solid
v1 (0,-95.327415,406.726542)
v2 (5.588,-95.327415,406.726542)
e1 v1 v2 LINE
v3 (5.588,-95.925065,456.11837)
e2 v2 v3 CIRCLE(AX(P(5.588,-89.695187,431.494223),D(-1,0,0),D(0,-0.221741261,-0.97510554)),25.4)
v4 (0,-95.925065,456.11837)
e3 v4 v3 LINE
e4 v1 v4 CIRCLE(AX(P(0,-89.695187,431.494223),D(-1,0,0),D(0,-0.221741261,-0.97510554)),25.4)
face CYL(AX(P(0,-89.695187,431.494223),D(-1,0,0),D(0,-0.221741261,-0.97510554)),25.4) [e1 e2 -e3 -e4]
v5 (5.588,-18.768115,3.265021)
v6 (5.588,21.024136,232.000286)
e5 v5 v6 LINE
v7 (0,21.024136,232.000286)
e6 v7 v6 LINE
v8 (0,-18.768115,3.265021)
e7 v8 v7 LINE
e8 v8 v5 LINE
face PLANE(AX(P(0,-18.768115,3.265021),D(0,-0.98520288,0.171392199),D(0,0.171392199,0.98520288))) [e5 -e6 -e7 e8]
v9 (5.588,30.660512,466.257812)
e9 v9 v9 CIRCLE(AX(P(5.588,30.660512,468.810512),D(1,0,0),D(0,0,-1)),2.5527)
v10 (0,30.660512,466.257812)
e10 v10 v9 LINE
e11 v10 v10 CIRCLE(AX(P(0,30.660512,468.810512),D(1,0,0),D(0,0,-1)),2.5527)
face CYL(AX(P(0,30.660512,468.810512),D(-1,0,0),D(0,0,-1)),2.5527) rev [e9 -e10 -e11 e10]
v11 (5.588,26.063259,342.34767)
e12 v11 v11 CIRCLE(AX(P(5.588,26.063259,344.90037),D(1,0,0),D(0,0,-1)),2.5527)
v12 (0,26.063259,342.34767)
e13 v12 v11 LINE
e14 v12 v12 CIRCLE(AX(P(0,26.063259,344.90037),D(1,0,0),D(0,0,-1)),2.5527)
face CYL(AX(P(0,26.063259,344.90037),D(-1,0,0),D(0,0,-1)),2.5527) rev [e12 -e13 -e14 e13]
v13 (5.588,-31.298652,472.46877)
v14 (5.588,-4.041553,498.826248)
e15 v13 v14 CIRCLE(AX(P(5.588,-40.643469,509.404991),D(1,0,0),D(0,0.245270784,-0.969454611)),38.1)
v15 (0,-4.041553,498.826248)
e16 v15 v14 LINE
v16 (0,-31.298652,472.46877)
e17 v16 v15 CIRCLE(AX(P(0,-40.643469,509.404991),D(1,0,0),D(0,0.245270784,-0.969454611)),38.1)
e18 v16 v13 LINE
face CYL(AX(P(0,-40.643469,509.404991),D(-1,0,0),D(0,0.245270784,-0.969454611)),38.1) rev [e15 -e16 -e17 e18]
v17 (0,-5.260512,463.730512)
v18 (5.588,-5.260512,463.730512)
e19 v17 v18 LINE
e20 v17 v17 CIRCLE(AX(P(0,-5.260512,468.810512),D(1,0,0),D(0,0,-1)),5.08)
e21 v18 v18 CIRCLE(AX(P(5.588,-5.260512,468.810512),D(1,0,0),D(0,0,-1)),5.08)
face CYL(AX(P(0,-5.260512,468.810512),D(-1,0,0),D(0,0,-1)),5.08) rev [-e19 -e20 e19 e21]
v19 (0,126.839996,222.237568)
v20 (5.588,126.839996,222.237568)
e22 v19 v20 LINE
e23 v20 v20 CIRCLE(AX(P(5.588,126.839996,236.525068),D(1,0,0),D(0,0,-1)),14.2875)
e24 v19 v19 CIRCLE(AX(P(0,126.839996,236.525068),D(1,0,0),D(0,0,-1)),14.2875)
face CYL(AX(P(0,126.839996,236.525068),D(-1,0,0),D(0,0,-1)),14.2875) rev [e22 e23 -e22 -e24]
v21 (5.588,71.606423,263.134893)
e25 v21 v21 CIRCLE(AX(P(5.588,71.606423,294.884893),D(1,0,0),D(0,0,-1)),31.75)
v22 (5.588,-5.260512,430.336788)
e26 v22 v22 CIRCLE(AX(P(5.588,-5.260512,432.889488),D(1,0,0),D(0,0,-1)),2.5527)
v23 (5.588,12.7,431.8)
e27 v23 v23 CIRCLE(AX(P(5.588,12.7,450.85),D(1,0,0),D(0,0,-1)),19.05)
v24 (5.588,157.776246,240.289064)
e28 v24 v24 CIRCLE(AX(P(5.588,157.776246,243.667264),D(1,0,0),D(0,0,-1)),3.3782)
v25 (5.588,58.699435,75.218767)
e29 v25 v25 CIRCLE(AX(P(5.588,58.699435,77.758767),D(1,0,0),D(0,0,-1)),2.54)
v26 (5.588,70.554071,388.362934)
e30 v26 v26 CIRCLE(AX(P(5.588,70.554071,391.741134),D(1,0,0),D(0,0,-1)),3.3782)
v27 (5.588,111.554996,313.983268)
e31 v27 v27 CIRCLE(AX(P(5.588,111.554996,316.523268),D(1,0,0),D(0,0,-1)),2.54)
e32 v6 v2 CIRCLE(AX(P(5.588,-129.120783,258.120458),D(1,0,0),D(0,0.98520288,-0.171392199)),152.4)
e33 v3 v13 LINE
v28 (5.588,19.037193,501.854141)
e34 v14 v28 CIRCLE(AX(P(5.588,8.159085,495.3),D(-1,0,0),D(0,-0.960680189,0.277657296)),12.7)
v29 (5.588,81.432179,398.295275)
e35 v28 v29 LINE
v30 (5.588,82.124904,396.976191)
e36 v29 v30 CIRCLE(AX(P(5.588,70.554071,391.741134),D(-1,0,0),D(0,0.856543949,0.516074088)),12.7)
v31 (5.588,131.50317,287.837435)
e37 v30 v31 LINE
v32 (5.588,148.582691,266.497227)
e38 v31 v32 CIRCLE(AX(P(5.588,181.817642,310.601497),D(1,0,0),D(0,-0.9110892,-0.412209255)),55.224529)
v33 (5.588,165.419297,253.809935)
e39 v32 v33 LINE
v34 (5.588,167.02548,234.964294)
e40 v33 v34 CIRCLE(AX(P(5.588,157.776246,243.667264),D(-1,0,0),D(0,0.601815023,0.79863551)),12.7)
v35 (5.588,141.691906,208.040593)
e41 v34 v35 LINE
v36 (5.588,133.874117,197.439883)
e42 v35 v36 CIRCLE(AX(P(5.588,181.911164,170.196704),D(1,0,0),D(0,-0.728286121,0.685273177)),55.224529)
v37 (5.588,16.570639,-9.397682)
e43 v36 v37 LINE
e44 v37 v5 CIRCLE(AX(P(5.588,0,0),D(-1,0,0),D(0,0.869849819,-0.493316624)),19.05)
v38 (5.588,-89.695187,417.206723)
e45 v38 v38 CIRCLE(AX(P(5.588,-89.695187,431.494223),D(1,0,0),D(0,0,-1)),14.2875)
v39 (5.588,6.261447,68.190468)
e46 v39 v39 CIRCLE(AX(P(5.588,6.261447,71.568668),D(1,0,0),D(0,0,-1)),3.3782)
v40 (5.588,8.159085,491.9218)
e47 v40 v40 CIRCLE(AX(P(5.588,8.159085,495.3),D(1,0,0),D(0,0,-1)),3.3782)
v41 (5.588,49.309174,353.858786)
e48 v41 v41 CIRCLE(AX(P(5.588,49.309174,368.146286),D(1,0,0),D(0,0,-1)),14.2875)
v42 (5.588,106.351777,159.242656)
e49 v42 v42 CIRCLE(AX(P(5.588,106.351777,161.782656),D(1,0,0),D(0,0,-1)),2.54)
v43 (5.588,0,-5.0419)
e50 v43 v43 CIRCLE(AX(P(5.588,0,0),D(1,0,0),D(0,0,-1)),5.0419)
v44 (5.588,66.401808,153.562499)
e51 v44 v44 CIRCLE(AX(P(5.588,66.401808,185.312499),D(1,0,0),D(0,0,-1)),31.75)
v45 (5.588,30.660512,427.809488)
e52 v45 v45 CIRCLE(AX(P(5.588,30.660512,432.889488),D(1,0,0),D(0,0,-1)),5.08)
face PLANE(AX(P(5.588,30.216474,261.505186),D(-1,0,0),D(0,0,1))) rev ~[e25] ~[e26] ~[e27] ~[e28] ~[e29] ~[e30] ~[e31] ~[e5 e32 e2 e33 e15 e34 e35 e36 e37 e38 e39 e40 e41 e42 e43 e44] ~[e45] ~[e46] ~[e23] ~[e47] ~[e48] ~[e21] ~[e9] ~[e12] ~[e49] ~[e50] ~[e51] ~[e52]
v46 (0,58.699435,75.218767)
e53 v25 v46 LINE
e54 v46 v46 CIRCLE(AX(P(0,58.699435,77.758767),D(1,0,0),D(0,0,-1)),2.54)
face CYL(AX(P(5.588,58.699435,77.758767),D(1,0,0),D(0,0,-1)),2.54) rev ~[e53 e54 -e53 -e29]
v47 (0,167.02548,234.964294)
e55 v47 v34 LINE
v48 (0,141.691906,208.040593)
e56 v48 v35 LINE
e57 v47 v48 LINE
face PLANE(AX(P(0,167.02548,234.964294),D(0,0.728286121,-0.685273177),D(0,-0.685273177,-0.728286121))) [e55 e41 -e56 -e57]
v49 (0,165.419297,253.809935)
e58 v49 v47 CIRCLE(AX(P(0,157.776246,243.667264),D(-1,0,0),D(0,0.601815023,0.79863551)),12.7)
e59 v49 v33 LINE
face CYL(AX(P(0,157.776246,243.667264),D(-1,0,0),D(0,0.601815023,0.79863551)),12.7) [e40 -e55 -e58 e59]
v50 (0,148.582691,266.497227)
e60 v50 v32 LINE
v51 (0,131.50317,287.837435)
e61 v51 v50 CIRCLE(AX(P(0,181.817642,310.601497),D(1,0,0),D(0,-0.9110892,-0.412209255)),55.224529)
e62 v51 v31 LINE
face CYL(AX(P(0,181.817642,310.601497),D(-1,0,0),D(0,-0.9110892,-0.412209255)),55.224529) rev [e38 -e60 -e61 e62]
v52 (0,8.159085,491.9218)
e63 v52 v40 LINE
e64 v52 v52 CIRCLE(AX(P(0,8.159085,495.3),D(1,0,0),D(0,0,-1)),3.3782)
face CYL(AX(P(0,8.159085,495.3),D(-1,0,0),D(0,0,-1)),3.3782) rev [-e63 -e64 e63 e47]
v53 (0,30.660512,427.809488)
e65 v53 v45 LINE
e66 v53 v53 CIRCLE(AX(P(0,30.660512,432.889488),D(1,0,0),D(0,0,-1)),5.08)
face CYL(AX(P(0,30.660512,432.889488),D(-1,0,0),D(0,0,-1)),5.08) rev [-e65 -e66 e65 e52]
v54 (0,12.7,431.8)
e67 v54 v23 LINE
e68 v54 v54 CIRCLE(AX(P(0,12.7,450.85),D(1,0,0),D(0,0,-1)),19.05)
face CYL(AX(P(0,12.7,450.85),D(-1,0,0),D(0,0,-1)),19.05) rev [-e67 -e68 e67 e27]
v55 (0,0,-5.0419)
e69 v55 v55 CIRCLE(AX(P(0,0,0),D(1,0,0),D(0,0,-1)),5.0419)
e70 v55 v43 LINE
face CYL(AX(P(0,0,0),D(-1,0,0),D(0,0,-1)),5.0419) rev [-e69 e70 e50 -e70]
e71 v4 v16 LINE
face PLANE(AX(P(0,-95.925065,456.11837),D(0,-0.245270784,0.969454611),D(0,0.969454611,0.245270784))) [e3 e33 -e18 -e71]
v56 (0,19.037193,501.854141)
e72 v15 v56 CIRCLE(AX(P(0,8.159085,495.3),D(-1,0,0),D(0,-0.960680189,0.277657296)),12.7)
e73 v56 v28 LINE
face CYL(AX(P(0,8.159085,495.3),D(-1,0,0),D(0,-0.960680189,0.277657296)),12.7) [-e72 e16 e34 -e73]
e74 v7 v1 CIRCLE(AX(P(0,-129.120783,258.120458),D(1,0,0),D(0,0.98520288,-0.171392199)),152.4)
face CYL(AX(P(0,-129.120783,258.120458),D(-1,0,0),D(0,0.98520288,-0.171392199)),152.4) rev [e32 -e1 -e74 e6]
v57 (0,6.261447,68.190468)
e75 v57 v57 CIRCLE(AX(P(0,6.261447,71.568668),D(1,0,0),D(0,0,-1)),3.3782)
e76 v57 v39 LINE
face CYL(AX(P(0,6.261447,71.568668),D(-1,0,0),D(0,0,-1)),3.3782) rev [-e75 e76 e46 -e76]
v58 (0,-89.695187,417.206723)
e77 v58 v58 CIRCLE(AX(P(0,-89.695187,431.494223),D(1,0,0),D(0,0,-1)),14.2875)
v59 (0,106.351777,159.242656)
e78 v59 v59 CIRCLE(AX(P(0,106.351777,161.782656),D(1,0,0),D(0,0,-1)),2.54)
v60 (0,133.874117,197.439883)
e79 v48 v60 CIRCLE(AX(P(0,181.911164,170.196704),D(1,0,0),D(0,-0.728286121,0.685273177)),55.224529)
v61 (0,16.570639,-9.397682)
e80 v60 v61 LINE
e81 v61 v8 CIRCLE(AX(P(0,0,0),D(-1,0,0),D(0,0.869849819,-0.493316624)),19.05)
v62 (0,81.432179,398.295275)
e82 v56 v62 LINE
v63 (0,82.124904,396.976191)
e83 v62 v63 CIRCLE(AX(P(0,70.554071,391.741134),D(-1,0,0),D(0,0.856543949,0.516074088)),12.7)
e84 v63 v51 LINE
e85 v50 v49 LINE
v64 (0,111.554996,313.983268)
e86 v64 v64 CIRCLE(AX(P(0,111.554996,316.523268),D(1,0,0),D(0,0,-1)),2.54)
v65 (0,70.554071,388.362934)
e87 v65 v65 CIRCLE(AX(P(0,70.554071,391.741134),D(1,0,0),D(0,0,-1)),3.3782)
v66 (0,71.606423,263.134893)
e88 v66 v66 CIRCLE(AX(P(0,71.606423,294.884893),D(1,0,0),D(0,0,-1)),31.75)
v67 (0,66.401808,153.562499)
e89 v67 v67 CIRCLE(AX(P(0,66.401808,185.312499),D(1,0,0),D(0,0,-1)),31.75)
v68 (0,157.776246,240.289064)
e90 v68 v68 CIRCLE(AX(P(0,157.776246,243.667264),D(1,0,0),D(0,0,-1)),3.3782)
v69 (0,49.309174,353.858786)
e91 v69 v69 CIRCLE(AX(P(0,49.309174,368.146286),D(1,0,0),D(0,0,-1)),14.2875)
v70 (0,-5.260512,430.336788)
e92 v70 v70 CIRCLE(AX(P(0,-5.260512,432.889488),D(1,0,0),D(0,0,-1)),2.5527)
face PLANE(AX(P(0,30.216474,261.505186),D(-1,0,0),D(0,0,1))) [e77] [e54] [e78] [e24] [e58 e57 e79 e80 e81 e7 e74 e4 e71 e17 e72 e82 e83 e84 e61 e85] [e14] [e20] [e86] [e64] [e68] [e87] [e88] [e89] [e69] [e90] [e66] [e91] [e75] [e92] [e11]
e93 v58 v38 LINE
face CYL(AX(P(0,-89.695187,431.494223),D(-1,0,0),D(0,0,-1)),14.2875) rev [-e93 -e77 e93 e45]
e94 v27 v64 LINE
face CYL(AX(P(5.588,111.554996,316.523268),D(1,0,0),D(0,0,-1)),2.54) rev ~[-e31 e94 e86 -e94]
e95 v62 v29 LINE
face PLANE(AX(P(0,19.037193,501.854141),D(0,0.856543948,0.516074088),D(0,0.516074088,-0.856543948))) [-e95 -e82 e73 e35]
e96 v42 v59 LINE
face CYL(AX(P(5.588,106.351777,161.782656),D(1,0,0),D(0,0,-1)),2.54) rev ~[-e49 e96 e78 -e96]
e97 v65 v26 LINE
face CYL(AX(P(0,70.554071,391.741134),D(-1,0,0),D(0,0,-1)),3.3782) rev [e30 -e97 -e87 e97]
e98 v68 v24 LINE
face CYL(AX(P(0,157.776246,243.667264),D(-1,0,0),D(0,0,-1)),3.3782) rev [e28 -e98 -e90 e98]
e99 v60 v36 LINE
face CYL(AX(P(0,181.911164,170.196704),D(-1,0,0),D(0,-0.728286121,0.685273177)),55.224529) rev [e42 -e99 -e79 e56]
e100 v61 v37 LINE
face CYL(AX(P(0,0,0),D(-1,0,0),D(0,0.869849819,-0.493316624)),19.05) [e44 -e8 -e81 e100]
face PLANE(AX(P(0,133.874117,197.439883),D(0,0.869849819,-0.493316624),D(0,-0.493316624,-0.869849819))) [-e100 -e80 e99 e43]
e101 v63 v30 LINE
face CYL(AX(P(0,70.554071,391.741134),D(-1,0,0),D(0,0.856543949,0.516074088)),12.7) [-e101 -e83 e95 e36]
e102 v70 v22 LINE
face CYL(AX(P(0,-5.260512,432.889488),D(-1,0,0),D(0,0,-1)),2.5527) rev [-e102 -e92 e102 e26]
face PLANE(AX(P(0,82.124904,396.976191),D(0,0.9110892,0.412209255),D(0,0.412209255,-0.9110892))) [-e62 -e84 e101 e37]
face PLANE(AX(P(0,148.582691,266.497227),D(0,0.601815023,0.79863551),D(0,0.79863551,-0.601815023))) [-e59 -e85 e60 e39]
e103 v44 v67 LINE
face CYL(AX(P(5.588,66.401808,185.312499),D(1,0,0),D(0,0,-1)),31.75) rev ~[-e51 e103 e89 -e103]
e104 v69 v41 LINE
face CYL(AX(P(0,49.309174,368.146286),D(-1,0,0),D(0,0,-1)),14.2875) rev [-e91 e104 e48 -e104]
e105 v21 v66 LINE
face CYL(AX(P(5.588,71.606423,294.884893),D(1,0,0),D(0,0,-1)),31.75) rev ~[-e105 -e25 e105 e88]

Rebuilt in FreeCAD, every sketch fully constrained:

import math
import FreeCAD as App
import Part
import Sketcher

V = App.Vector
Q = App.Units.Quantity

doc = App.newDocument("Part")
body = doc.addObject("PartDesign::Body", "Body")

sketch1 = body.newObject("Sketcher::SketchObject", "Sketch")
sketch1.AttachmentSupport = (doc.getObject("YZ_Plane"), [""])
sketch1.MapMode = "FlatFace"
sketch1.addGeometry(Part.LineSegment(V(-31.3, 472.5, 0), V(-95.9, 456.1, 0)), False)
sketch1.addGeometry(Part.ArcOfCircle(Part.Circle(V(-89.7, 431.5, 0), V(0, 0, 1), 25.4), math.radians(104), math.radians(257)), False)
sketch1.addGeometry(Part.ArcOfCircle(Part.Circle(V(-129.1, 258.1, 0), V(0, 0, 1), 152.4), math.radians(-10), math.radians(77)), False)
sketch1.addGeometry(Part.LineSegment(V(21, 232, 0), V(-18.8, 3.3, 0)), False)
sketch1.addGeometry(Part.ArcOfCircle(Part.Circle(V(0, 0, 0), V(0, 0, 1), 19.1), math.radians(170), math.radians(330)), False)
sketch1.addGeometry(Part.LineSegment(V(16.6, -9.4, 0), V(133.9, 197.4, 0)), False)
sketch1.addGeometry(Part.ArcOfCircle(Part.Circle(V(181.9, 170.2, 0), V(0, 0, 1), 55.2), math.radians(136.74), math.radians(150.44)), False)
sketch1.addGeometry(Part.LineSegment(V(141.7, 208, 0), V(167, 235, 0)), False)
sketch1.addGeometry(Part.ArcOfCircle(Part.Circle(V(157.8, 243.7, 0), V(0, 0, 1), 12.7), math.radians(-43), math.radians(53)), False)
sketch1.addGeometry(Part.LineSegment(V(165.4, 253.8, 0), V(148.6, 266.5, 0)), False)
sketch1.addGeometry(Part.ArcOfCircle(Part.Circle(V(181.8, 310.6, 0), V(0, 0, 1), 55.2), math.radians(-156), math.radians(-127)), False)
sketch1.addGeometry(Part.LineSegment(V(131.5, 287.8, 0), V(82.1, 397, 0)), False)
sketch1.addGeometry(Part.ArcOfCircle(Part.Circle(V(70.6, 391.7, 0), V(0, 0, 1), 12.7), math.radians(24.34), math.radians(31.07)), False)
sketch1.addGeometry(Part.LineSegment(V(81.4, 398.3, 0), V(19, 501.9, 0)), False)
sketch1.addGeometry(Part.ArcOfCircle(Part.Circle(V(8.2, 495.3, 0), V(0, 0, 1), 12.7), math.radians(31), math.radians(164)), False)
sketch1.addGeometry(Part.ArcOfCircle(Part.Circle(V(-40.6, 509.4, 0), V(0, 0, 1), 38.1), math.radians(-76), math.radians(-16)), False)
sketch1.addGeometry(Part.Circle(V(0, 0, 0), V(0, 0, 1), 5), False)
sketch1.addGeometry(Part.Circle(V(6.3, 71.6, 0), V(0, 0, 1), 3.4), False)
sketch1.addGeometry(Part.Circle(V(-89.7, 431.5, 0), V(0, 0, 1), 14.3), False)
sketch1.addGeometry(Part.Circle(V(26.1, 344.9, 0), V(0, 0, 1), 2.6), False)
sketch1.addGeometry(Part.Circle(V(-5.3, 432.9, 0), V(0, 0, 1), 2.6), False)
sketch1.addGeometry(Part.Circle(V(-5.3, 468.8, 0), V(0, 0, 1), 5.1), False)
sketch1.addGeometry(Part.Circle(V(8.2, 495.3, 0), V(0, 0, 1), 3.4), False)
sketch1.addGeometry(Part.Circle(V(12.7, 450.9, 0), V(0, 0, 1), 19.1), False)
sketch1.addGeometry(Part.Circle(V(126.8, 236.5, 0), V(0, 0, 1), 14.3), False)
sketch1.addGeometry(Part.Circle(V(157.8, 243.7, 0), V(0, 0, 1), 3.4), False)
sketch1.addGeometry(Part.Circle(V(49.3, 368.1, 0), V(0, 0, 1), 14.3), False)
sketch1.addGeometry(Part.Circle(V(30.7, 432.9, 0), V(0, 0, 1), 5.1), False)
sketch1.addGeometry(Part.Circle(V(30.7, 468.8, 0), V(0, 0, 1), 2.6), False)
sketch1.addGeometry(Part.Circle(V(70.6, 391.7, 0), V(0, 0, 1), 3.4), False)
sketch1.addConstraint(Sketcher.Constraint("Tangent", 0, 2, 1, 1))
sketch1.addConstraint(Sketcher.Constraint("Tangent", 1, 2, 2, 2))
sketch1.addConstraint(Sketcher.Constraint("Tangent", 2, 1, 3, 1))
sketch1.addConstraint(Sketcher.Constraint("Tangent", 3, 2, 4, 1))
sketch1.addConstraint(Sketcher.Constraint("Tangent", 4, 2, 5, 1))
sketch1.addConstraint(Sketcher.Constraint("Tangent", 5, 2, 6, 2))
sketch1.addConstraint(Sketcher.Constraint("Tangent", 6, 1, 7, 1))
sketch1.addConstraint(Sketcher.Constraint("Tangent", 7, 2, 8, 1))
sketch1.addConstraint(Sketcher.Constraint("Tangent", 8, 2, 9, 1))
sketch1.addConstraint(Sketcher.Constraint("Tangent", 9, 2, 10, 2))
sketch1.addConstraint(Sketcher.Constraint("Tangent", 10, 1, 11, 1))
sketch1.addConstraint(Sketcher.Constraint("Tangent", 11, 2, 12, 1))
sketch1.addConstraint(Sketcher.Constraint("Tangent", 12, 2, 13, 1))
sketch1.addConstraint(Sketcher.Constraint("Tangent", 13, 2, 14, 1))
sketch1.addConstraint(Sketcher.Constraint("Tangent", 14, 2, 15, 2))
sketch1.addConstraint(Sketcher.Constraint("Tangent", 15, 1, 0, 1))
sketch1.addConstraint(Sketcher.Constraint("Coincident", 4, 3, -1, 1))
sketch1.addConstraint(Sketcher.Constraint("Coincident", 16, 3, -1, 1))
sketch1.addConstraint(Sketcher.Constraint("Coincident", 18, 3, 1, 3))
sketch1.addConstraint(Sketcher.Constraint("Coincident", 22, 3, 14, 3))
sketch1.addConstraint(Sketcher.Constraint("Coincident", 25, 3, 8, 3))
sketch1.addConstraint(Sketcher.Constraint("Coincident", 29, 3, 12, 3))
sketch1.addConstraint(Sketcher.Constraint("Equal", 6, 10))
sketch1.addConstraint(Sketcher.Constraint("Equal", 8, 12))
sketch1.addConstraint(Sketcher.Constraint("Equal", 12, 14))
sketch1.addConstraint(Sketcher.Constraint("Equal", 19, 20))
sketch1.addConstraint(Sketcher.Constraint("Equal", 17, 22))
sketch1.addConstraint(Sketcher.Constraint("Equal", 4, 23))
sketch1.addConstraint(Sketcher.Constraint("Equal", 18, 24))
sketch1.addConstraint(Sketcher.Constraint("Equal", 22, 25))
sketch1.addConstraint(Sketcher.Constraint("Equal", 24, 26))
sketch1.addConstraint(Sketcher.Constraint("Equal", 21, 27))
sketch1.addConstraint(Sketcher.Constraint("Equal", 20, 28))
sketch1.addConstraint(Sketcher.Constraint("Equal", 25, 29))
sketch1.addConstraint(Sketcher.Constraint("Horizontal", 20, 3, 27, 3))
sketch1.addConstraint(Sketcher.Constraint("Horizontal", 21, 3, 28, 3))
sketch1.addConstraint(Sketcher.Constraint("Vertical", 20, 3, 21, 3))
sketch1.addConstraint(Sketcher.Constraint("Vertical", 27, 3, 28, 3))
sketch1.addConstraint(Sketcher.Constraint("Radius", 1, Q("1 in")))
sketch1.addConstraint(Sketcher.Constraint("Radius", 2, Q("6 in")))
sketch1.addConstraint(Sketcher.Constraint("Diameter", 21, Q("0.4 in")))
sketch1.addConstraint(Sketcher.Constraint("Diameter", 23, Q("1.5 in")))
sketch1.addConstraint(Sketcher.Constraint("Radius", 8, Q("0.5 in")))
sketch1.addConstraint(Sketcher.Constraint("Radius", 15, Q("1.5 in")))
sketch1.addConstraint(Sketcher.Constraint("Diameter", 16, Q("0.397 in")))
sketch1.addConstraint(Sketcher.Constraint("Diameter", 17, Q("0.266 in")))
sketch1.addConstraint(Sketcher.Constraint("Diameter", 18, Q("1.125 in")))
sketch1.addConstraint(Sketcher.Constraint("Diameter", 19, Q("0.201 in")))
sketch1.addConstraint(Sketcher.Constraint("Angle", 9, Q("143 deg")))
sketch1.addConstraint(Sketcher.Constraint("DistanceY", -1, 1, 14, 3, Q("19.5 in")))
sketch1.addConstraint(Sketcher.Constraint("DistanceX", -1, 1, 23, 3, Q("0.5 in")))
sketch1.addConstraint(Sketcher.Constraint("DistanceY", -1, 1, 23, 3, Q("17.75 in")))
sketch1.addConstraint(Sketcher.Constraint("Radius", 6, 55.224529))
sketch1.addConstraint(Sketcher.Constraint("DistanceX", 17, 3, 8, 3, 151.514799))
sketch1.addConstraint(Sketcher.Constraint("DistanceY", 2, 1, 26, 3, 136.145999))
sketch1.addConstraint(Sketcher.Constraint("DistanceY", 6, 1, 7, 2, 26.923702))
sketch1.addConstraint(Sketcher.Constraint("DistanceX", 24, 3, 8, 2, 38.5793))
sketch1.addConstraint(Sketcher.Constraint("DistanceY", 8, 2, 10, 1, 34.0275))
sketch1.addConstraint(Sketcher.Constraint("DistanceX", 15, 1, 14, 2, 27.257098))
sketch1.addConstraint(Sketcher.Constraint("Distance", 0, 66.66265))
sketch1.addConstraint(Sketcher.Constraint("Distance", 11, 119.789321))
sketch1.addConstraint(Sketcher.Constraint("DistanceX", -1, 1, 12, 3, 70.554071))
sketch1.addConstraint(Sketcher.Constraint("DistanceX", 15, 3, -1, 1, 40.643469))
sketch1.addConstraint(Sketcher.Constraint("DistanceY", -1, 1, 15, 3, 509.404991))
sketch1.addConstraint(Sketcher.Constraint("DistanceY", -1, 1, 17, 3, 71.568668))
sketch1.addConstraint(Sketcher.Constraint("DistanceX", -1, 1, 19, 3, 26.063259))
sketch1.addConstraint(Sketcher.Constraint("DistanceY", -1, 1, 19, 3, 344.90037))
sketch1.addConstraint(Sketcher.Constraint("DistanceY", -1, 1, 1, 2, 406.726542))
sketch1.addConstraint(Sketcher.Constraint("DistanceX", -1, 1, 7, 2, 167.02548))
sketch1.addConstraint(Sketcher.Constraint("DistanceX", -1, 1, 9, 2, 148.582691))
sketch1.addConstraint(Sketcher.Constraint("DistanceY", -1, 1, 11, 2, 396.976191))
sketch1.addConstraint(Sketcher.Constraint("DistanceY", 21, 3, 15, 3, 40.594478))
sketch1.addConstraint(Sketcher.Constraint("DistanceY", 24, 3, 10, 3, 74.076429))
sketch1.addConstraint(Sketcher.Constraint("DistanceX", 27, 3, 12, 3, 39.893558))
sketch1.addConstraint(Sketcher.Constraint("DistanceY", 20, 3, 0, 2, 23.228882))
sketch1.addConstraint(Sketcher.Constraint("DistanceX", 2, 1, 26, 3, 28.285038))
sketch1.addConstraint(Sketcher.Constraint("DistanceX", 21, 3, 14, 2, 1.218959))
pad1 = body.newObject("PartDesign::Pad", "Pad")
pad1.Profile = sketch1
pad1.Length = Q("0.22 in")

sketch2 = body.newObject("Sketcher::SketchObject", "Sketch001")
sketch2.AttachmentSupport = (doc.getObject("YZ_Plane"), [""])
sketch2.MapMode = "FlatFace"
sketch2.AttachmentOffset = App.Placement(V(0, 0, 0.22 * 25.4), App.Rotation())
sketch2.addGeometry(Part.Circle(V(71.6, 294.9, 0), V(0, 0, 1), 31.8), False)
sketch2.addGeometry(Part.Circle(V(66.4, 185.3, 0), V(0, 0, 1), 31.8), False)
sketch2.addGeometry(Part.Circle(V(111.6, 316.5, 0), V(0, 0, 1), 2.5), False)
sketch2.addGeometry(Part.Circle(V(106.4, 161.8, 0), V(0, 0, 1), 2.5), False)
sketch2.addGeometry(Part.Circle(V(58.7, 77.8, 0), V(0, 0, 1), 2.5), False)
sketch2.addConstraint(Sketcher.Constraint("Equal", 0, 1))
sketch2.addConstraint(Sketcher.Constraint("Equal", 2, 3))
sketch2.addConstraint(Sketcher.Constraint("Equal", 3, 4))
sketch2.addConstraint(Sketcher.Constraint("Diameter", 0, Q("2.5 in")))
sketch2.addConstraint(Sketcher.Constraint("Diameter", 2, Q("0.2 in")))
sketch2.addConstraint(Sketcher.Constraint("DistanceY", -1, 1, 1, 3, 185.312499))
sketch2.addConstraint(Sketcher.Constraint("DistanceY", 4, 3, 2, 3, 238.764501))
sketch2.addConstraint(Sketcher.Constraint("DistanceX", -1, 1, 1, 3, 66.401808))
sketch2.addConstraint(Sketcher.Constraint("DistanceY", -1, 1, 2, 3, 316.523268))
sketch2.addConstraint(Sketcher.Constraint("DistanceX", 1, 3, 2, 3, 45.153188))
sketch2.addConstraint(Sketcher.Constraint("DistanceX", 1, 3, 3, 3, 39.949969))
sketch2.addConstraint(Sketcher.Constraint("DistanceY", 4, 3, 3, 3, 84.023889))
sketch2.addConstraint(Sketcher.Constraint("DistanceX", 4, 3, 0, 3, 12.906989))
sketch2.addConstraint(Sketcher.Constraint("DistanceX", 4, 3, 2, 3, 52.855561))
sketch2.addConstraint(Sketcher.Constraint("DistanceY", -1, 1, 0, 3, 294.884893))
pocket1 = body.newObject("PartDesign::Pocket", "Pocket")
pocket1.Profile = sketch2
pocket1.Type = "ThroughAll"

doc.recompute()
